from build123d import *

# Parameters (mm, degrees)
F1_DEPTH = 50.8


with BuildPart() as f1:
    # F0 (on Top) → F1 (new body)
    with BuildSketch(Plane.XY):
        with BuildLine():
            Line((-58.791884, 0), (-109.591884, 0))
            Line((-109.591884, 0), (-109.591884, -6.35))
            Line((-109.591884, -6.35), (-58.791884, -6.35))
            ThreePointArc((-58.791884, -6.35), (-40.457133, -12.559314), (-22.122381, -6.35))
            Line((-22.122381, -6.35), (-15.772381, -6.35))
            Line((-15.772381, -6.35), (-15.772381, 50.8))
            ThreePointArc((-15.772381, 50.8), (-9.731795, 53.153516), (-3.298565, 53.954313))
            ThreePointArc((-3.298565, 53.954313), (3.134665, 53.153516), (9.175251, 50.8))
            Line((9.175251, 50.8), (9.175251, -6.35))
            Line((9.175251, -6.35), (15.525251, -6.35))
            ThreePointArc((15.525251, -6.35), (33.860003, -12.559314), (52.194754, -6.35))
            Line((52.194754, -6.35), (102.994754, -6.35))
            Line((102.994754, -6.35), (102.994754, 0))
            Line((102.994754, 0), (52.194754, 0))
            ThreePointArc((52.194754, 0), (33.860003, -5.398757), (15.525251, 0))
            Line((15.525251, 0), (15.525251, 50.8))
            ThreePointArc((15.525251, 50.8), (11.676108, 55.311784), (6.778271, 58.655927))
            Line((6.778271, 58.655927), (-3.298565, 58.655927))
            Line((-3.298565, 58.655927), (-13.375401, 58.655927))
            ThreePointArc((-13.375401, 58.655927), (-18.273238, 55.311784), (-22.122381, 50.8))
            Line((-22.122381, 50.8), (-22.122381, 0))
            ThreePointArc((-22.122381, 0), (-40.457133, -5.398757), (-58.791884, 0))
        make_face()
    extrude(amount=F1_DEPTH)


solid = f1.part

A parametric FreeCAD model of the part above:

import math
import FreeCAD as App
import Part
import Sketcher

V = App.Vector
Q = App.Units.Quantity

doc = App.newDocument("Part")
body = doc.addObject("PartDesign::Body", "Body")

# Sketch on XY plane
sketch1 = doc.addObject("Sketcher::SketchObject", "Sketch")
body.addObject(sketch1)
sketch1.AttachmentSupport = (doc.XY_Plane, [""])
sketch1.MapMode = "FlatFace"
sketch1.addGeometry(Part.LineSegment(V(-59, 0, 0), V(-110, 0, 0)), False)
sketch1.addGeometry(Part.LineSegment(V(-110, 0, 0), V(-110, -6, 0)), False)
sketch1.addGeometry(Part.LineSegment(V(-110, -6, 0), V(-59, -6, 0)), False)
sketch1.addGeometry(Part.ArcOfCircle(Part.Circle(V(-40, 18, 0), V(0, 0, 1), 30), math.radians(-127), math.radians(-53)), False)
sketch1.addGeometry(Part.LineSegment(V(-22, -6, 0), V(-16, -6, 0)), False)
sketch1.addGeometry(Part.LineSegment(V(-16, -6, 0), V(-16, 51, 0)), False)
sketch1.addGeometry(Part.ArcOfCircle(Part.Circle(V(-3, 28, 0), V(0, 0, 1), 26), math.radians(90), math.radians(118)), False)
sketch1.addGeometry(Part.ArcOfCircle(Part.Circle(V(-3, 28, 0), V(0, 0, 1), 26), math.radians(62), math.radians(90)), False)
sketch1.addGeometry(Part.LineSegment(V(9, 51, 0), V(9, -6, 0)), False)
sketch1.addGeometry(Part.LineSegment(V(9, -6, 0), V(16, -6, 0)), False)
sketch1.addGeometry(Part.ArcOfCircle(Part.Circle(V(34, 18, 0), V(0, 0, 1), 30), math.radians(-127), math.radians(-53)), False)
sketch1.addGeometry(Part.LineSegment(V(52, -6, 0), V(103, -6, 0)), False)
sketch1.addGeometry(Part.LineSegment(V(103, -6, 0), V(103, 0, 0)), False)
sketch1.addGeometry(Part.LineSegment(V(103, 0, 0), V(52, 0, 0)), False)
sketch1.addGeometry(Part.ArcOfCircle(Part.Circle(V(34, 28, 0), V(0, 0, 1), 34), math.radians(-123), math.radians(-57)), False)
sketch1.addGeometry(Part.LineSegment(V(16, 0, 0), V(16, 51, 0)), False)
sketch1.addGeometry(Part.ArcOfCircle(Part.Circle(V(-3, 39, 0), V(0, 0, 1), 22), math.radians(33), math.radians(63)), False)
sketch1.addGeometry(Part.LineSegment(V(7, 59, 0), V(-13, 59, 0)), False)
sketch1.addGeometry(Part.ArcOfCircle(Part.Circle(V(-3, 39, 0), V(0, 0, 1), 22), math.radians(117), math.radians(147)), False)
sketch1.addGeometry(Part.LineSegment(V(-22, 51, 0), V(-22, 0, 0)), False)
sketch1.addGeometry(Part.ArcOfCircle(Part.Circle(V(-40, 28, 0), V(0, 0, 1), 34), math.radians(-123), math.radians(-57)), False)
sketch1.addConstraint(Sketcher.Constraint("Coincident", 0, 2, 1, 1))
sketch1.addConstraint(Sketcher.Constraint("Coincident", 1, 2, 2, 1))
sketch1.addConstraint(Sketcher.Constraint("Coincident", 2, 2, 3, 1))
sketch1.addConstraint(Sketcher.Constraint("Coincident", 3, 2, 4, 1))
sketch1.addConstraint(Sketcher.Constraint("Coincident", 4, 2, 5, 1))
sketch1.addConstraint(Sketcher.Constraint("Coincident", 5, 2, 6, 2))
sketch1.addConstraint(Sketcher.Constraint("Tangent", 6, 1, 7, 2))
sketch1.addConstraint(Sketcher.Constraint("Coincident", 7, 1, 8, 1))
sketch1.addConstraint(Sketcher.Constraint("Coincident", 8, 2, 9, 1))
sketch1.addConstraint(Sketcher.Constraint("Coincident", 9, 2, 10, 1))
sketch1.addConstraint(Sketcher.Constraint("Coincident", 10, 2, 11, 1))
sketch1.addConstraint(Sketcher.Constraint("Coincident", 11, 2, 12, 1))
sketch1.addConstraint(Sketcher.Constraint("Coincident", 12, 2, 13, 1))
sketch1.addConstraint(Sketcher.Constraint("Coincident", 13, 2, 14, 2))
sketch1.addConstraint(Sketcher.Constraint("Coincident", 14, 1, 15, 1))
sketch1.addConstraint(Sketcher.Constraint("Coincident", 15, 2, 16, 1))
sketch1.addConstraint(Sketcher.Constraint("Coincident", 16, 2, 17, 1))
sketch1.addConstraint(Sketcher.Constraint("Coincident", 17, 2, 18, 1))
sketch1.addConstraint(Sketcher.Constraint("Coincident", 18, 2, 19, 1))
sketch1.addConstraint(Sketcher.Constraint("Coincident", 19, 2, 20, 2))
sketch1.addConstraint(Sketcher.Constraint("Coincident", 20, 1, 0, 1))
sketch1.addConstraint(Sketcher.Constraint("Horizontal", 0))
sketch1.addConstraint(Sketcher.Constraint("Vertical", 1))
sketch1.addConstraint(Sketcher.Constraint("Horizontal", 2))
sketch1.addConstraint(Sketcher.Constraint("Horizontal", 4))
sketch1.addConstraint(Sketcher.Constraint("Vertical", 5))
sketch1.addConstraint(Sketcher.Constraint("Vertical", 8))
sketch1.addConstraint(Sketcher.Constraint("Horizontal", 9))
sketch1.addConstraint(Sketcher.Constraint("Horizontal", 11))
sketch1.addConstraint(Sketcher.Constraint("Vertical", 12))
sketch1.addConstraint(Sketcher.Constraint("Horizontal", 13))
sketch1.addConstraint(Sketcher.Constraint("Vertical", 15))
sketch1.addConstraint(Sketcher.Constraint("Horizontal", 17))
sketch1.addConstraint(Sketcher.Constraint("Vertical", 19))
sketch1.addConstraint(Sketcher.Constraint("Equal", 6, 7))
sketch1.addConstraint(Sketcher.Constraint("Equal", 3, 10))
sketch1.addConstraint(Sketcher.Constraint("Equal", 16, 18))
sketch1.addConstraint(Sketcher.Constraint("Equal", 14, 20))
sketch1.addConstraint(Sketcher.Constraint("PointOnObject", 0, 2, -1))
sketch1.addConstraint(Sketcher.Constraint("PointOnObject", 12, 2, -1))
sketch1.addConstraint(Sketcher.Constraint("PointOnObject", 14, 1, -1))
sketch1.addConstraint(Sketcher.Constraint("PointOnObject", 19, 2, -1))
sketch1.addConstraint(Sketcher.Constraint("Horizontal", 3, 3, 10, 3))
sketch1.addConstraint(Sketcher.Constraint("Horizontal", 16, 3, 18, 3))
sketch1.addConstraint(Sketcher.Constraint("Horizontal", 14, 3, 20, 3))
sketch1.addConstraint(Sketcher.Constraint("Horizontal", 2, 2, 3, 2))
sketch1.addConstraint(Sketcher.Constraint("Horizontal", 5, 2, 7, 1))
sketch1.addConstraint(Sketcher.Constraint("Horizontal", 4, 2, 8, 2))
sketch1.addConstraint(Sketcher.Constraint("Horizontal", 9, 2, 10, 2))
sketch1.addConstraint(Sketcher.Constraint("Horizontal", 7, 1, 15, 2))
sketch1.addConstraint(Sketcher.Constraint("Horizontal", 15, 2, 18, 2))
sketch1.addConstraint(Sketcher.Constraint("Vertical", 10, 3, 14, 3))
sketch1.addConstraint(Sketcher.Constraint("Vertical", 3, 3, 20, 3))
sketch1.addConstraint(Sketcher.Constraint("Vertical", 7, 3, 6, 1))
sketch1.addConstraint(Sketcher.Constraint("Vertical", 10, 2, 13, 2))
sketch1.addConstraint(Sketcher.Constraint("Equal", 4, 9))
sketch1.addConstraint(Sketcher.Constraint("Equal", 2, 11))
sketch1.addConstraint(Sketcher.Constraint("Equal", 9, 1))
sketch1.addConstraint(Sketcher.Constraint("Equal", 13, 15))
sketch1.addConstraint(Sketcher.Constraint("DistanceX", 0, 2, 0, 1, Q("2 in")))
sketch1.addConstraint(Sketcher.Constraint("DistanceX", 4, 1, 4, 2, Q("0.25 in")))
sketch1.addConstraint(Sketcher.Constraint("Radius", 3, 30.17392))
sketch1.addConstraint(Sketcher.Constraint("Radius", 6, 26.241171))
sketch1.addConstraint(Sketcher.Constraint("Radius", 14, 33.832759))
sketch1.addConstraint(Sketcher.Constraint("Radius", 16, 22.410592))
sketch1.addConstraint(Sketcher.Constraint("DistanceX", 17, 2, 17, 1, 20.153672))
sketch1.addConstraint(Sketcher.Constraint("DistanceX", 17, 2, -1, 1, 13.375401))
sketch1.addConstraint(Sketcher.Constraint("DistanceY", -1, 1, 16, 3, 38.63863))
sketch1.addConstraint(Sketcher.Constraint("DistanceX", 3, 2, -1, 1, 22.122381))
sketch1.addConstraint(Sketcher.Constraint("DistanceX", 3, 3, 7, 3, 37.158569))
pad1 = doc.addObject("PartDesign::Pad", "Pad")
body.addObject(pad1)
pad1.Profile = sketch1
pad1.Length = Q("2 in")

doc.recompute()
